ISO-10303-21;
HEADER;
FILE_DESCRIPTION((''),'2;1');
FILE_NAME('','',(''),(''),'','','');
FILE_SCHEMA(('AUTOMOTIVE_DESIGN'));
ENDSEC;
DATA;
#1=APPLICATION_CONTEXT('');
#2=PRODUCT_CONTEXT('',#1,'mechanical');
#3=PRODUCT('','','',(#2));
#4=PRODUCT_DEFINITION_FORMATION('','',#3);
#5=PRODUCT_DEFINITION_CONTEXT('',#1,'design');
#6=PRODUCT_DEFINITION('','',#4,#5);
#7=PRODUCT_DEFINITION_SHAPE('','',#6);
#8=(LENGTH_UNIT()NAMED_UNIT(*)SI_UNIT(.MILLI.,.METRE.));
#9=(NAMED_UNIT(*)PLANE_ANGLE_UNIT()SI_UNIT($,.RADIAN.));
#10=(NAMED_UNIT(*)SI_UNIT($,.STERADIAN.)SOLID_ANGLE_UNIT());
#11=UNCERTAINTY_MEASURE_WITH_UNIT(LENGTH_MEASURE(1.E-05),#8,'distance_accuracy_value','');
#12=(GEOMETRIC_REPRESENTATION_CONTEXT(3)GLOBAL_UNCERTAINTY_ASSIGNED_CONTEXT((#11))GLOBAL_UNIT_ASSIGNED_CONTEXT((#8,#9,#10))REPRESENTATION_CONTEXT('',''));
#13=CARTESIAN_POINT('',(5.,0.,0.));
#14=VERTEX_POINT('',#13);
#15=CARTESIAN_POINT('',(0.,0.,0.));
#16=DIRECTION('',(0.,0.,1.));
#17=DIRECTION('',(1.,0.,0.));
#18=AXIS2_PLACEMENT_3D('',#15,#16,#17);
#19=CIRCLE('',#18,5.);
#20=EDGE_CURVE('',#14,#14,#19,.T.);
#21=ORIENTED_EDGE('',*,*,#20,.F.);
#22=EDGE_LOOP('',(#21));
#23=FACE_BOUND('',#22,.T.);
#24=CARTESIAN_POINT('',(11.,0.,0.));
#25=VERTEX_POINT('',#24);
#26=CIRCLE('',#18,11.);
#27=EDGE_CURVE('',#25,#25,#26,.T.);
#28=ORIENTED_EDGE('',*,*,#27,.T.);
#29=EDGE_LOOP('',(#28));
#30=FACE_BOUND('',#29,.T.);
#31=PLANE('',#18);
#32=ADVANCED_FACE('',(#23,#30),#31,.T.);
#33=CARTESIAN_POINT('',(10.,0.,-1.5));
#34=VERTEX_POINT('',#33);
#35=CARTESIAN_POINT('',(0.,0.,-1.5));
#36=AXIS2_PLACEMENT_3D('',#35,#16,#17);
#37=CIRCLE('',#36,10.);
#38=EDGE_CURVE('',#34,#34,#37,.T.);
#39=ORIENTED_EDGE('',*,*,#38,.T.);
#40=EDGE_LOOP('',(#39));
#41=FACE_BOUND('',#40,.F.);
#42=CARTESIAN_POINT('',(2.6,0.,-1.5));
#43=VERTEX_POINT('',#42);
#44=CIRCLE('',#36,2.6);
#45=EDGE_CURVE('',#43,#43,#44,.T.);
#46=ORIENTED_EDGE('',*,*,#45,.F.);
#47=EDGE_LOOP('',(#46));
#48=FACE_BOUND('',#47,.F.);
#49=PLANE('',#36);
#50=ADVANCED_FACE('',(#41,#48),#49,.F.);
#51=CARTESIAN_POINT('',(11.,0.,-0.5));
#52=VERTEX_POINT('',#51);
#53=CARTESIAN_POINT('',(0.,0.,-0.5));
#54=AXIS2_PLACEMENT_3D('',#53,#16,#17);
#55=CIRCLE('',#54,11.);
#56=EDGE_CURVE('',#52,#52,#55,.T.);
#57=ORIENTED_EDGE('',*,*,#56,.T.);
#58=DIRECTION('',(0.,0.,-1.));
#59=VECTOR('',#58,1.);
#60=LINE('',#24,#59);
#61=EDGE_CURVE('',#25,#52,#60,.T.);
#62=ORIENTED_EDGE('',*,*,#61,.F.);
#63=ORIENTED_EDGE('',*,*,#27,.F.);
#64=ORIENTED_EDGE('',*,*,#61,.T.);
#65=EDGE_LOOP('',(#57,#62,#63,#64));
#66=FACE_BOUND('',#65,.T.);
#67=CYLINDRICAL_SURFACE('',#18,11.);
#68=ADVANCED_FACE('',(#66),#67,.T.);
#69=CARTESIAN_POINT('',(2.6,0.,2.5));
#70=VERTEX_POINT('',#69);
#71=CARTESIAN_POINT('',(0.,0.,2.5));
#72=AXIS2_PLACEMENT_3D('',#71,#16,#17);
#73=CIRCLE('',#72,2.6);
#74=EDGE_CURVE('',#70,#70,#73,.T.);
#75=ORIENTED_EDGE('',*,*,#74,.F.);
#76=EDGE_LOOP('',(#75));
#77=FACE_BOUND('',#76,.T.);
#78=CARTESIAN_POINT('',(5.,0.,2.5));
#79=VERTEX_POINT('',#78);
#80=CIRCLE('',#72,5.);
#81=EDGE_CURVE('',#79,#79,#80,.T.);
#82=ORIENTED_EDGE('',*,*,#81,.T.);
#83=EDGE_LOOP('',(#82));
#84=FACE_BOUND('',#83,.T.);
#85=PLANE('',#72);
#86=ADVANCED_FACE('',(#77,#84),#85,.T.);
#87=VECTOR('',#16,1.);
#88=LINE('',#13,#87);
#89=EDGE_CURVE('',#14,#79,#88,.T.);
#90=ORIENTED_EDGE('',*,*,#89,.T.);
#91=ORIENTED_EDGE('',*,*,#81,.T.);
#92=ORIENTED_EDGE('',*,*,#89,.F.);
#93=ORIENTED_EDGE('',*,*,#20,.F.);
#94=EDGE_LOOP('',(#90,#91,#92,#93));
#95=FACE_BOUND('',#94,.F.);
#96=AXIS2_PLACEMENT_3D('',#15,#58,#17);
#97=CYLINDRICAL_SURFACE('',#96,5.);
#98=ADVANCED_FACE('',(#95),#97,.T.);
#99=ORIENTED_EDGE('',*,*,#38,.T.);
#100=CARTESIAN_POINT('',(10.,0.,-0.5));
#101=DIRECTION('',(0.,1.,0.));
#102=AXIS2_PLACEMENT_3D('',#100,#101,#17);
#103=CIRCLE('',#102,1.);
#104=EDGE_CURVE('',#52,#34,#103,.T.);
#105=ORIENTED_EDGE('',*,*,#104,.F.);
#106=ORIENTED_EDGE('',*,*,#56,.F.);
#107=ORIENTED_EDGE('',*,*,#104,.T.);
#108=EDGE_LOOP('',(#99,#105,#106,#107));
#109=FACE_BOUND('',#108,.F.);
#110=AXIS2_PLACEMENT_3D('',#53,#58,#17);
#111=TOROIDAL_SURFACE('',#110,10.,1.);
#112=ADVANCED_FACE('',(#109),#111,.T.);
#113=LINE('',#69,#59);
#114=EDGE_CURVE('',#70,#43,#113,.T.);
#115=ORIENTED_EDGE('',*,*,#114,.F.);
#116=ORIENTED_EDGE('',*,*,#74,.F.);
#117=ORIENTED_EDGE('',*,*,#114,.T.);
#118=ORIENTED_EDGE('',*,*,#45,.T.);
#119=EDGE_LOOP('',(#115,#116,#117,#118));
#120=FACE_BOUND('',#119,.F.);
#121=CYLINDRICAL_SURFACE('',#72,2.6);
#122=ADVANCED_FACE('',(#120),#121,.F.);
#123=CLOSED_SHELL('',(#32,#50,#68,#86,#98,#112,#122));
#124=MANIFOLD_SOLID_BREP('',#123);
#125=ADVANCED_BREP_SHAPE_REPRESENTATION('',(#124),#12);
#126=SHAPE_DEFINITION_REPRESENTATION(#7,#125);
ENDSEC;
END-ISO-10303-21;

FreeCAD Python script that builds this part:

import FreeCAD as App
import Part
import Sketcher
from FreeCAD import Vector


def edges_at(feature, points):
    """Names of the edges that pass closest to the given points."""
    edges = feature.Shape.Edges
    near = lambda p: min(range(len(edges)), key=lambda i: edges[i].distToShape(Part.Vertex(*p))[0])
    return sorted({f"Edge{near(p) + 1}" for p in points})

doc = App.newDocument("Part")
params = doc.addObject("Spreadsheet::Sheet", "Params")
for row, (alias, value) in enumerate([
    ("sketch1_diameter", "22 mm"),
    ("pad1_length", "1.5 mm"),
    ("sketch2_diameter", "10 mm"),
    ("pad2_length", "2.5 mm"),
    ("sketch3_diameter", "5.2 mm"),
    ("pocket1_length", "4 mm"),
    ("fillet_radius", "1 mm"),
], start=1):
    params.set(f"A{row}", alias)
    params.set(f"B{row}", "=" + value)
    params.setAlias(f"B{row}", alias)

body = doc.addObject("PartDesign::Body", "Body")

# Sketch on XY plane
sketch1 = body.newObject("Sketcher::SketchObject", "Sketch")
sketch1.AttachmentSupport = (doc.getObject("XY_Plane"), [""])
sketch1.MapMode = "FlatFace"
sketch1.addGeometry(Part.Circle(Vector(0, 0, 0), Vector(0, 0, 1), 11), False)
sketch1.addConstraint([
    Sketcher.Constraint("Coincident", 0, 3, -1, 1),
    Sketcher.Constraint("Diameter", 0, 22.0),
])
sketch1.setExpression("Constraints[1]", "Params.sketch1_diameter")
pad1 = body.newObject("PartDesign::Pad", "Pad")
pad1.Profile = sketch1
pad1.setExpression("Length", "Params.pad1_length")
pad1.Reversed = True

# Sketch on XY plane
sketch2 = body.newObject("Sketcher::SketchObject", "Sketch001")
sketch2.AttachmentSupport = (doc.getObject("XY_Plane"), [""])
sketch2.MapMode = "FlatFace"
sketch2.addGeometry(Part.Circle(Vector(0, 0, 0), Vector(0, 0, 1), 5), False)
sketch2.addConstraint([
    Sketcher.Constraint("Coincident", 0, 3, -1, 1),
    Sketcher.Constraint("Diameter", 0, 10.0),
])
sketch2.setExpression("Constraints[1]", "Params.sketch2_diameter")
pad2 = body.newObject("PartDesign::Pad", "Pad001")
pad2.Profile = sketch2
pad2.setExpression("Length", "Params.pad2_length")

# Sketch on XY plane
sketch3 = body.newObject("Sketcher::SketchObject", "Sketch002")
sketch3.AttachmentSupport = (doc.getObject("XY_Plane"), [""])
sketch3.MapMode = "FlatFace"
sketch3.AttachmentOffset = App.Placement(Vector(0, 0, 2.5), App.Rotation())
sketch3.addGeometry(Part.Circle(Vector(0, 0, 0), Vector(0, 0, 1), 2.6), False)
sketch3.addConstraint([
    Sketcher.Constraint("Coincident", 0, 3, -1, 1),
    Sketcher.Constraint("Diameter", 0, 5.2),
])
sketch3.setExpression("Constraints[1]", "Params.sketch3_diameter")
pocket1 = body.newObject("PartDesign::Pocket", "Pocket")
pocket1.Profile = sketch3
pocket1.setExpression("Length", "Params.pocket1_length")
doc.recompute()

fillet = body.newObject("PartDesign::Fillet", "Fillet")
fillet.Base = (pocket1, edges_at(pocket1, [(-11, 0, -1.5)]))
fillet.setExpression("Radius", "Params.fillet_radius")

doc.recompute()
